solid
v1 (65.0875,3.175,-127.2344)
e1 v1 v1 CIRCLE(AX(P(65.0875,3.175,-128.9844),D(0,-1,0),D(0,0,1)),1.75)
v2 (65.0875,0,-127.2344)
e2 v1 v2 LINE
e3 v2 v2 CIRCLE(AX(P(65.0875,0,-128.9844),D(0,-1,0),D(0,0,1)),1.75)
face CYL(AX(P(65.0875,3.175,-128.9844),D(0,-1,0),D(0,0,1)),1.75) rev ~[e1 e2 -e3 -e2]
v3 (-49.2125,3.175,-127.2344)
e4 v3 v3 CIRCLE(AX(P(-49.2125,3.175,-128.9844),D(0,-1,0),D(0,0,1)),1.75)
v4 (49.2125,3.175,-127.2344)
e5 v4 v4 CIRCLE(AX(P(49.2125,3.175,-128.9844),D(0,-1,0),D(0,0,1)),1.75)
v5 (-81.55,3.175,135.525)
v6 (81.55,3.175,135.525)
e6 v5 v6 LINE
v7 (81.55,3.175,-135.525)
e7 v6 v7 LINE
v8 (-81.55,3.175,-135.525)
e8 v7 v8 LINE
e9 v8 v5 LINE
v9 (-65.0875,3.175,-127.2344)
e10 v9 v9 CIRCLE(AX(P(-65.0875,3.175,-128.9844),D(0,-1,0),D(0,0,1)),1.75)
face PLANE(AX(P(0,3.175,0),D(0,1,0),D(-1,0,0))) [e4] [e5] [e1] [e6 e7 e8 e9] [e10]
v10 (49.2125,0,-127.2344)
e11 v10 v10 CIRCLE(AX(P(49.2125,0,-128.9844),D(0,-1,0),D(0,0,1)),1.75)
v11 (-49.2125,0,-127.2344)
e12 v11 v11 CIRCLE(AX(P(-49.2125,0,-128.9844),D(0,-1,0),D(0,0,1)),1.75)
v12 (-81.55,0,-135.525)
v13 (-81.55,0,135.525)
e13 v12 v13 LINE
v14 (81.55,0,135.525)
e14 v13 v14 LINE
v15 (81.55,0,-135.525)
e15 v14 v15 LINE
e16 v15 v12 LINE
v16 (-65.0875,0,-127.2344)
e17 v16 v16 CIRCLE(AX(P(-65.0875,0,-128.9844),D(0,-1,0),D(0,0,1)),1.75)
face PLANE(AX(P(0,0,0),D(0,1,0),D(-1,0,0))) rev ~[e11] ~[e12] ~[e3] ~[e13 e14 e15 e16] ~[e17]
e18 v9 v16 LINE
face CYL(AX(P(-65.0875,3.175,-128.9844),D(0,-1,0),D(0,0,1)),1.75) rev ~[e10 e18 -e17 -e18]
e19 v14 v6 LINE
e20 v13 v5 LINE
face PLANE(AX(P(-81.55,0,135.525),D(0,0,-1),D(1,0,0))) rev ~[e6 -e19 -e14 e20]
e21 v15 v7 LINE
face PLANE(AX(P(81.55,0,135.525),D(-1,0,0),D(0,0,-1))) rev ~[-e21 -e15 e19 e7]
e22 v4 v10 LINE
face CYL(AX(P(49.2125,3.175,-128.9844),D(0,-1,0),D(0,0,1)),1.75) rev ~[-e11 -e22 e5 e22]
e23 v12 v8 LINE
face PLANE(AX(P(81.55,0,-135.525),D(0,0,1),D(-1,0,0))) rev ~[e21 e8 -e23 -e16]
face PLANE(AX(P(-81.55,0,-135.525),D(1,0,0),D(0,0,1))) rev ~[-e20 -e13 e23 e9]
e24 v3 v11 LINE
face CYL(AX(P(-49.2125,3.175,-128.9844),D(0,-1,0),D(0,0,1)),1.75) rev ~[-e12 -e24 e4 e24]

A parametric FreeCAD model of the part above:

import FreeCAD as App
import Part
import Sketcher

V = App.Vector


def add_polygon(sketch, points):
    """Adds a closed chain of lines whose ends are joined by coincident constraints."""
    first, n = sketch.GeometryCount, len(points)
    for a, b in zip(points, points[1:] + points[:1]):
        sketch.addGeometry(Part.LineSegment(App.Vector(*a, 0), App.Vector(*b, 0)), False)
    for i in range(n):
        sketch.addConstraint(Sketcher.Constraint("Coincident", first + i, 2, first + (i + 1) % n, 1))

doc = App.newDocument("Part")
params = doc.addObject("Spreadsheet::Sheet", "Params")
for row, (alias, value) in enumerate([
    ("sketch1_width", "163.1 mm"),
    ("sketch1_height", "271.05 mm"),
    ("pad1_length", "3.175 mm"),
    ("sketch2_diameter", "3.5 mm"),
    ("hole_diameter", "3.5 mm"),
], start=1):
    params.set(f"A{row}", alias)
    params.set(f"B{row}", "=" + value)
    params.setAlias(f"B{row}", alias)

body = doc.addObject("PartDesign::Body", "Body")

sketch1 = body.newObject("Sketcher::SketchObject", "Sketch")
sketch1.AttachmentSupport = (doc.getObject("XZ_Plane"), [""])
sketch1.MapMode = "FlatFace"
add_polygon(sketch1, [(-82, -136), (-82, 136), (82, 136), (82, -136)])
sketch1.addConstraint([
    Sketcher.Constraint("Vertical", 0),
    Sketcher.Constraint("Horizontal", 1),
    Sketcher.Constraint("Vertical", 2),
    Sketcher.Constraint("Horizontal", 3),
    Sketcher.Constraint("Symmetric", 0, 2, 2, 2, -1, 1),
    Sketcher.Constraint("DistanceX", 1, 1, 1, 2, 163.1),
    Sketcher.Constraint("DistanceY", 0, 1, 0, 2, 271.05),
])
sketch1.setExpression("Constraints[9]", "Params.sketch1_width")
sketch1.setExpression("Constraints[10]", "Params.sketch1_height")
pad1 = body.newObject("PartDesign::Pad", "Pad")
pad1.Profile = sketch1
pad1.setExpression("Length", "Params.pad1_length")
pad1.Reversed = True

sketch2 = body.newObject("Sketcher::SketchObject", "Sketch001")
sketch2.AttachmentSupport = (doc.getObject("XZ_Plane"), [""])
sketch2.MapMode = "FlatFace"
sketch2.AttachmentOffset = App.Placement(V(0, 0, -3.175), App.Rotation())
sketch2.addGeometry([
    Part.Circle(V(-49.2, -129, 0), V(0, 0, 1), 1.8),
    Part.Circle(V(-65.1, -129, 0), V(0, 0, 1), 1.8),
    Part.Circle(V(49.2, -129, 0), V(0, 0, 1), 1.8),
    Part.Circle(V(65.1, -129, 0), V(0, 0, 1), 1.8),
], False)
sketch2.addConstraint([
    Sketcher.Constraint("Equal", 0, 1),
    Sketcher.Constraint("Equal", 1, 2),
    Sketcher.Constraint("Equal", 2, 3),
    Sketcher.Constraint("Symmetric", 0, 3, 2, 3, -2),
    Sketcher.Constraint("Symmetric", 1, 3, 3, 3, -2),
    Sketcher.Constraint("Horizontal", 0, 3, 1, 3),
    Sketcher.Constraint("Diameter", 0, 3.5),
    Sketcher.Constraint("DistanceX", 1, 3, 2, 3, 114.3),
    Sketcher.Constraint("DistanceX", 1, 3, 0, 3, 15.875),
    Sketcher.Constraint("DistanceY", 0, 3, -1, 1, 128.9844),
])
sketch2.setExpression("Constraints[6]", "Params.sketch2_diameter")
doc.recompute()
hole = body.newObject("PartDesign::Hole", "Hole")
hole.Profile = sketch2
hole.ThreadType = "None"
hole.setExpression("Diameter", "Params.hole_diameter")
hole.DepthType = "ThroughAll"
hole.Reversed = True

doc.recompute()
